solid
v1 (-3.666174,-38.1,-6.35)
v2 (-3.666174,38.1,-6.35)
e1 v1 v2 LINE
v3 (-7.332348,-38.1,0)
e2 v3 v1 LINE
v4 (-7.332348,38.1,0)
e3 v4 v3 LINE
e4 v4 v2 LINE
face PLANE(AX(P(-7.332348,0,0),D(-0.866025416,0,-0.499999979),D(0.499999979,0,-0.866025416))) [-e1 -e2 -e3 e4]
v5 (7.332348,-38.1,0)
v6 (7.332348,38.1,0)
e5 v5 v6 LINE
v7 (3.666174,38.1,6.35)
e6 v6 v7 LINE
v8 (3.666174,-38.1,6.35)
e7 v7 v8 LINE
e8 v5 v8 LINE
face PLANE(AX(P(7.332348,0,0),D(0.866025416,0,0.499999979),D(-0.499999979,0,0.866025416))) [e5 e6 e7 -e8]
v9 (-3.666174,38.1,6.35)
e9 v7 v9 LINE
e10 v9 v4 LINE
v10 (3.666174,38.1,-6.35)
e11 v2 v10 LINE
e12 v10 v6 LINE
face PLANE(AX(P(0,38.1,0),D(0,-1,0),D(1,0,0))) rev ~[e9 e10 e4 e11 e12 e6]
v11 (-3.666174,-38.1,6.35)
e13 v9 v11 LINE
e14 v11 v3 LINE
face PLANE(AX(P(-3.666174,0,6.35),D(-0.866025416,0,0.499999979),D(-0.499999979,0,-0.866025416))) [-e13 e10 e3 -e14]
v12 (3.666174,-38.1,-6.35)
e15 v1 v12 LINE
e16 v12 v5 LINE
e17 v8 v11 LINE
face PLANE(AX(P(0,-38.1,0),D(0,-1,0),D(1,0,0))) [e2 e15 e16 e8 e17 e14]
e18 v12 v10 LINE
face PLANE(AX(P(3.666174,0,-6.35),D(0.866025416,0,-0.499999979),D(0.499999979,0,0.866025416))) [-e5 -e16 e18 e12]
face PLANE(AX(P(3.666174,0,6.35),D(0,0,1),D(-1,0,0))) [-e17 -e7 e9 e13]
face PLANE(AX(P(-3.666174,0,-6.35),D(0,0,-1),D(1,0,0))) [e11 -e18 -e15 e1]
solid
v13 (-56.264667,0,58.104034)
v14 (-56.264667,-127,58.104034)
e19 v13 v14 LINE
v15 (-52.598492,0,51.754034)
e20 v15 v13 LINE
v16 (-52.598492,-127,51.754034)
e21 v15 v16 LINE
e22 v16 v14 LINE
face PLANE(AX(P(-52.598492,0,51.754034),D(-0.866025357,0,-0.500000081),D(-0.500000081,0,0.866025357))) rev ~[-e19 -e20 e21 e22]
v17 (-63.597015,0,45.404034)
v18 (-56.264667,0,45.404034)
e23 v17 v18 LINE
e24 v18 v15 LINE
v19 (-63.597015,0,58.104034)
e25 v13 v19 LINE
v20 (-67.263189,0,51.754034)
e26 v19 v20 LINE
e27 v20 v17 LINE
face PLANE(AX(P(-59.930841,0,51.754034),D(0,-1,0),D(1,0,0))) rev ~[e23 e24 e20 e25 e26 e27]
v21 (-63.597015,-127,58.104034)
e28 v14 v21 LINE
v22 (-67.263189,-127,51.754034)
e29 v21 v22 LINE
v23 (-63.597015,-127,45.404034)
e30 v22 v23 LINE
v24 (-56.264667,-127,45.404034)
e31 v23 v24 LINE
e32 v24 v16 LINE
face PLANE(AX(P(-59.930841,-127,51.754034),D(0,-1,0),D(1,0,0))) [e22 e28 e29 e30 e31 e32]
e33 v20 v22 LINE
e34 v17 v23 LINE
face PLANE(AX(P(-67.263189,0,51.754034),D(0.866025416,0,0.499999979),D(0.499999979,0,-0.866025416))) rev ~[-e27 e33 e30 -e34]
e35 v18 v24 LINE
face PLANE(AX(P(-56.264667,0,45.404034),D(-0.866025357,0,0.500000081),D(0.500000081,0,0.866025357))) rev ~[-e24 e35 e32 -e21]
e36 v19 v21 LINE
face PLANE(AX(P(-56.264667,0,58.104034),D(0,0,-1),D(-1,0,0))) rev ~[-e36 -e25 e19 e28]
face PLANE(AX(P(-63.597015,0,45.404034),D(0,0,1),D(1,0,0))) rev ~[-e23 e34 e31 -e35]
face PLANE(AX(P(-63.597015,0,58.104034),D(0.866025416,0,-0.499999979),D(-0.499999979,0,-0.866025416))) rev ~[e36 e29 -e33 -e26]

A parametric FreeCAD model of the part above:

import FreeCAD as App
import Part
import Sketcher
Q = App.Units.Quantity


def add_polygon(sketch, points):
    """Adds a closed chain of lines whose ends are joined by coincident constraints."""
    first, n = sketch.GeometryCount, len(points)
    for a, b in zip(points, points[1:] + points[:1]):
        sketch.addGeometry(Part.LineSegment(App.Vector(*a, 0), App.Vector(*b, 0)), False)
    for i in range(n):
        sketch.addConstraint(Sketcher.Constraint("Coincident", first + i, 2, first + (i + 1) % n, 1))

doc = App.newDocument("Part")
body = doc.addObject("PartDesign::Body", "Body")

# Sketch on XZ plane
sketch1 = body.newObject("Sketcher::SketchObject", "Sketch")
sketch1.AttachmentSupport = (doc.getObject("XZ_Plane"), [""])
sketch1.MapMode = "FlatFace"
add_polygon(sketch1, [(7, 0), (4, 6), (-4, 6), (-7, 0), (-4, -6), (4, -6)])  # lines 0-5
sketch1.addConstraint([
    Sketcher.Constraint("Horizontal", 1),
    Sketcher.Constraint("Horizontal", 4),
    Sketcher.Constraint("Symmetric", 0, 2, 3, 2, -1, 1),
    Sketcher.Constraint("Symmetric", 2, 2, 5, 2, -1, 1),
    Sketcher.Constraint("PointOnObject", 2, 2, -1),
    Sketcher.Constraint("Parallel", 2, 5),
    Sketcher.Constraint("Vertical", 1, 2, 3, 2),
    Sketcher.Constraint("Angle", 0, Q("119.999999 deg")),
    Sketcher.Constraint("DistanceY", 3, 2, 1, 2, Q("0.5 in")),
    Sketcher.Constraint("DistanceX", 1, 2, 1, 1, Q("7.332348 mm")),
])
pad1 = body.newObject("PartDesign::Pad", "Pad")
pad1.Profile = sketch1
pad1.Length = Q("3 in")
pad1.Midplane = True
body2 = doc.addObject("PartDesign::Body", "Body001")

# Sketch on XZ plane
sketch2 = body2.newObject("Sketcher::SketchObject", "Sketch001")
sketch2.AttachmentSupport = (doc.getObject("XZ_Plane001"), [""])
sketch2.MapMode = "FlatFace"
add_polygon(sketch2, [(-53, 52), (-56, 58), (-64, 58), (-67, 52), (-64, 45), (-56, 45)])  # lines 0-5
sketch2.addConstraint([
    Sketcher.Constraint("Horizontal", 1),
    Sketcher.Constraint("Horizontal", 4),
    Sketcher.Constraint("Parallel", 0, 3),
    Sketcher.Constraint("Parallel", 2, 5),
    Sketcher.Constraint("Horizontal", 2, 2, 5, 2),
    Sketcher.Constraint("Vertical", 1, 2, 3, 2),
    Sketcher.Constraint("Vertical", 0, 2, 4, 2),
    Sketcher.Constraint("Angle", 0, Q("120.000005 deg")),
    Sketcher.Constraint("DistanceY", 3, 2, 1, 2, Q("0.5 in")),
    Sketcher.Constraint("DistanceX", 1, 2, 1, 1, Q("7.332348 mm")),
    Sketcher.Constraint("DistanceX", 2, 2, -1, 1, Q("67.263189 mm")),
    Sketcher.Constraint("DistanceY", -1, 1, 0, 2, Q("58.104034 mm")),
])
pad2 = body2.newObject("PartDesign::Pad", "Pad001")
pad2.Profile = sketch2
pad2.Length = Q("5 in")

doc.recompute()
